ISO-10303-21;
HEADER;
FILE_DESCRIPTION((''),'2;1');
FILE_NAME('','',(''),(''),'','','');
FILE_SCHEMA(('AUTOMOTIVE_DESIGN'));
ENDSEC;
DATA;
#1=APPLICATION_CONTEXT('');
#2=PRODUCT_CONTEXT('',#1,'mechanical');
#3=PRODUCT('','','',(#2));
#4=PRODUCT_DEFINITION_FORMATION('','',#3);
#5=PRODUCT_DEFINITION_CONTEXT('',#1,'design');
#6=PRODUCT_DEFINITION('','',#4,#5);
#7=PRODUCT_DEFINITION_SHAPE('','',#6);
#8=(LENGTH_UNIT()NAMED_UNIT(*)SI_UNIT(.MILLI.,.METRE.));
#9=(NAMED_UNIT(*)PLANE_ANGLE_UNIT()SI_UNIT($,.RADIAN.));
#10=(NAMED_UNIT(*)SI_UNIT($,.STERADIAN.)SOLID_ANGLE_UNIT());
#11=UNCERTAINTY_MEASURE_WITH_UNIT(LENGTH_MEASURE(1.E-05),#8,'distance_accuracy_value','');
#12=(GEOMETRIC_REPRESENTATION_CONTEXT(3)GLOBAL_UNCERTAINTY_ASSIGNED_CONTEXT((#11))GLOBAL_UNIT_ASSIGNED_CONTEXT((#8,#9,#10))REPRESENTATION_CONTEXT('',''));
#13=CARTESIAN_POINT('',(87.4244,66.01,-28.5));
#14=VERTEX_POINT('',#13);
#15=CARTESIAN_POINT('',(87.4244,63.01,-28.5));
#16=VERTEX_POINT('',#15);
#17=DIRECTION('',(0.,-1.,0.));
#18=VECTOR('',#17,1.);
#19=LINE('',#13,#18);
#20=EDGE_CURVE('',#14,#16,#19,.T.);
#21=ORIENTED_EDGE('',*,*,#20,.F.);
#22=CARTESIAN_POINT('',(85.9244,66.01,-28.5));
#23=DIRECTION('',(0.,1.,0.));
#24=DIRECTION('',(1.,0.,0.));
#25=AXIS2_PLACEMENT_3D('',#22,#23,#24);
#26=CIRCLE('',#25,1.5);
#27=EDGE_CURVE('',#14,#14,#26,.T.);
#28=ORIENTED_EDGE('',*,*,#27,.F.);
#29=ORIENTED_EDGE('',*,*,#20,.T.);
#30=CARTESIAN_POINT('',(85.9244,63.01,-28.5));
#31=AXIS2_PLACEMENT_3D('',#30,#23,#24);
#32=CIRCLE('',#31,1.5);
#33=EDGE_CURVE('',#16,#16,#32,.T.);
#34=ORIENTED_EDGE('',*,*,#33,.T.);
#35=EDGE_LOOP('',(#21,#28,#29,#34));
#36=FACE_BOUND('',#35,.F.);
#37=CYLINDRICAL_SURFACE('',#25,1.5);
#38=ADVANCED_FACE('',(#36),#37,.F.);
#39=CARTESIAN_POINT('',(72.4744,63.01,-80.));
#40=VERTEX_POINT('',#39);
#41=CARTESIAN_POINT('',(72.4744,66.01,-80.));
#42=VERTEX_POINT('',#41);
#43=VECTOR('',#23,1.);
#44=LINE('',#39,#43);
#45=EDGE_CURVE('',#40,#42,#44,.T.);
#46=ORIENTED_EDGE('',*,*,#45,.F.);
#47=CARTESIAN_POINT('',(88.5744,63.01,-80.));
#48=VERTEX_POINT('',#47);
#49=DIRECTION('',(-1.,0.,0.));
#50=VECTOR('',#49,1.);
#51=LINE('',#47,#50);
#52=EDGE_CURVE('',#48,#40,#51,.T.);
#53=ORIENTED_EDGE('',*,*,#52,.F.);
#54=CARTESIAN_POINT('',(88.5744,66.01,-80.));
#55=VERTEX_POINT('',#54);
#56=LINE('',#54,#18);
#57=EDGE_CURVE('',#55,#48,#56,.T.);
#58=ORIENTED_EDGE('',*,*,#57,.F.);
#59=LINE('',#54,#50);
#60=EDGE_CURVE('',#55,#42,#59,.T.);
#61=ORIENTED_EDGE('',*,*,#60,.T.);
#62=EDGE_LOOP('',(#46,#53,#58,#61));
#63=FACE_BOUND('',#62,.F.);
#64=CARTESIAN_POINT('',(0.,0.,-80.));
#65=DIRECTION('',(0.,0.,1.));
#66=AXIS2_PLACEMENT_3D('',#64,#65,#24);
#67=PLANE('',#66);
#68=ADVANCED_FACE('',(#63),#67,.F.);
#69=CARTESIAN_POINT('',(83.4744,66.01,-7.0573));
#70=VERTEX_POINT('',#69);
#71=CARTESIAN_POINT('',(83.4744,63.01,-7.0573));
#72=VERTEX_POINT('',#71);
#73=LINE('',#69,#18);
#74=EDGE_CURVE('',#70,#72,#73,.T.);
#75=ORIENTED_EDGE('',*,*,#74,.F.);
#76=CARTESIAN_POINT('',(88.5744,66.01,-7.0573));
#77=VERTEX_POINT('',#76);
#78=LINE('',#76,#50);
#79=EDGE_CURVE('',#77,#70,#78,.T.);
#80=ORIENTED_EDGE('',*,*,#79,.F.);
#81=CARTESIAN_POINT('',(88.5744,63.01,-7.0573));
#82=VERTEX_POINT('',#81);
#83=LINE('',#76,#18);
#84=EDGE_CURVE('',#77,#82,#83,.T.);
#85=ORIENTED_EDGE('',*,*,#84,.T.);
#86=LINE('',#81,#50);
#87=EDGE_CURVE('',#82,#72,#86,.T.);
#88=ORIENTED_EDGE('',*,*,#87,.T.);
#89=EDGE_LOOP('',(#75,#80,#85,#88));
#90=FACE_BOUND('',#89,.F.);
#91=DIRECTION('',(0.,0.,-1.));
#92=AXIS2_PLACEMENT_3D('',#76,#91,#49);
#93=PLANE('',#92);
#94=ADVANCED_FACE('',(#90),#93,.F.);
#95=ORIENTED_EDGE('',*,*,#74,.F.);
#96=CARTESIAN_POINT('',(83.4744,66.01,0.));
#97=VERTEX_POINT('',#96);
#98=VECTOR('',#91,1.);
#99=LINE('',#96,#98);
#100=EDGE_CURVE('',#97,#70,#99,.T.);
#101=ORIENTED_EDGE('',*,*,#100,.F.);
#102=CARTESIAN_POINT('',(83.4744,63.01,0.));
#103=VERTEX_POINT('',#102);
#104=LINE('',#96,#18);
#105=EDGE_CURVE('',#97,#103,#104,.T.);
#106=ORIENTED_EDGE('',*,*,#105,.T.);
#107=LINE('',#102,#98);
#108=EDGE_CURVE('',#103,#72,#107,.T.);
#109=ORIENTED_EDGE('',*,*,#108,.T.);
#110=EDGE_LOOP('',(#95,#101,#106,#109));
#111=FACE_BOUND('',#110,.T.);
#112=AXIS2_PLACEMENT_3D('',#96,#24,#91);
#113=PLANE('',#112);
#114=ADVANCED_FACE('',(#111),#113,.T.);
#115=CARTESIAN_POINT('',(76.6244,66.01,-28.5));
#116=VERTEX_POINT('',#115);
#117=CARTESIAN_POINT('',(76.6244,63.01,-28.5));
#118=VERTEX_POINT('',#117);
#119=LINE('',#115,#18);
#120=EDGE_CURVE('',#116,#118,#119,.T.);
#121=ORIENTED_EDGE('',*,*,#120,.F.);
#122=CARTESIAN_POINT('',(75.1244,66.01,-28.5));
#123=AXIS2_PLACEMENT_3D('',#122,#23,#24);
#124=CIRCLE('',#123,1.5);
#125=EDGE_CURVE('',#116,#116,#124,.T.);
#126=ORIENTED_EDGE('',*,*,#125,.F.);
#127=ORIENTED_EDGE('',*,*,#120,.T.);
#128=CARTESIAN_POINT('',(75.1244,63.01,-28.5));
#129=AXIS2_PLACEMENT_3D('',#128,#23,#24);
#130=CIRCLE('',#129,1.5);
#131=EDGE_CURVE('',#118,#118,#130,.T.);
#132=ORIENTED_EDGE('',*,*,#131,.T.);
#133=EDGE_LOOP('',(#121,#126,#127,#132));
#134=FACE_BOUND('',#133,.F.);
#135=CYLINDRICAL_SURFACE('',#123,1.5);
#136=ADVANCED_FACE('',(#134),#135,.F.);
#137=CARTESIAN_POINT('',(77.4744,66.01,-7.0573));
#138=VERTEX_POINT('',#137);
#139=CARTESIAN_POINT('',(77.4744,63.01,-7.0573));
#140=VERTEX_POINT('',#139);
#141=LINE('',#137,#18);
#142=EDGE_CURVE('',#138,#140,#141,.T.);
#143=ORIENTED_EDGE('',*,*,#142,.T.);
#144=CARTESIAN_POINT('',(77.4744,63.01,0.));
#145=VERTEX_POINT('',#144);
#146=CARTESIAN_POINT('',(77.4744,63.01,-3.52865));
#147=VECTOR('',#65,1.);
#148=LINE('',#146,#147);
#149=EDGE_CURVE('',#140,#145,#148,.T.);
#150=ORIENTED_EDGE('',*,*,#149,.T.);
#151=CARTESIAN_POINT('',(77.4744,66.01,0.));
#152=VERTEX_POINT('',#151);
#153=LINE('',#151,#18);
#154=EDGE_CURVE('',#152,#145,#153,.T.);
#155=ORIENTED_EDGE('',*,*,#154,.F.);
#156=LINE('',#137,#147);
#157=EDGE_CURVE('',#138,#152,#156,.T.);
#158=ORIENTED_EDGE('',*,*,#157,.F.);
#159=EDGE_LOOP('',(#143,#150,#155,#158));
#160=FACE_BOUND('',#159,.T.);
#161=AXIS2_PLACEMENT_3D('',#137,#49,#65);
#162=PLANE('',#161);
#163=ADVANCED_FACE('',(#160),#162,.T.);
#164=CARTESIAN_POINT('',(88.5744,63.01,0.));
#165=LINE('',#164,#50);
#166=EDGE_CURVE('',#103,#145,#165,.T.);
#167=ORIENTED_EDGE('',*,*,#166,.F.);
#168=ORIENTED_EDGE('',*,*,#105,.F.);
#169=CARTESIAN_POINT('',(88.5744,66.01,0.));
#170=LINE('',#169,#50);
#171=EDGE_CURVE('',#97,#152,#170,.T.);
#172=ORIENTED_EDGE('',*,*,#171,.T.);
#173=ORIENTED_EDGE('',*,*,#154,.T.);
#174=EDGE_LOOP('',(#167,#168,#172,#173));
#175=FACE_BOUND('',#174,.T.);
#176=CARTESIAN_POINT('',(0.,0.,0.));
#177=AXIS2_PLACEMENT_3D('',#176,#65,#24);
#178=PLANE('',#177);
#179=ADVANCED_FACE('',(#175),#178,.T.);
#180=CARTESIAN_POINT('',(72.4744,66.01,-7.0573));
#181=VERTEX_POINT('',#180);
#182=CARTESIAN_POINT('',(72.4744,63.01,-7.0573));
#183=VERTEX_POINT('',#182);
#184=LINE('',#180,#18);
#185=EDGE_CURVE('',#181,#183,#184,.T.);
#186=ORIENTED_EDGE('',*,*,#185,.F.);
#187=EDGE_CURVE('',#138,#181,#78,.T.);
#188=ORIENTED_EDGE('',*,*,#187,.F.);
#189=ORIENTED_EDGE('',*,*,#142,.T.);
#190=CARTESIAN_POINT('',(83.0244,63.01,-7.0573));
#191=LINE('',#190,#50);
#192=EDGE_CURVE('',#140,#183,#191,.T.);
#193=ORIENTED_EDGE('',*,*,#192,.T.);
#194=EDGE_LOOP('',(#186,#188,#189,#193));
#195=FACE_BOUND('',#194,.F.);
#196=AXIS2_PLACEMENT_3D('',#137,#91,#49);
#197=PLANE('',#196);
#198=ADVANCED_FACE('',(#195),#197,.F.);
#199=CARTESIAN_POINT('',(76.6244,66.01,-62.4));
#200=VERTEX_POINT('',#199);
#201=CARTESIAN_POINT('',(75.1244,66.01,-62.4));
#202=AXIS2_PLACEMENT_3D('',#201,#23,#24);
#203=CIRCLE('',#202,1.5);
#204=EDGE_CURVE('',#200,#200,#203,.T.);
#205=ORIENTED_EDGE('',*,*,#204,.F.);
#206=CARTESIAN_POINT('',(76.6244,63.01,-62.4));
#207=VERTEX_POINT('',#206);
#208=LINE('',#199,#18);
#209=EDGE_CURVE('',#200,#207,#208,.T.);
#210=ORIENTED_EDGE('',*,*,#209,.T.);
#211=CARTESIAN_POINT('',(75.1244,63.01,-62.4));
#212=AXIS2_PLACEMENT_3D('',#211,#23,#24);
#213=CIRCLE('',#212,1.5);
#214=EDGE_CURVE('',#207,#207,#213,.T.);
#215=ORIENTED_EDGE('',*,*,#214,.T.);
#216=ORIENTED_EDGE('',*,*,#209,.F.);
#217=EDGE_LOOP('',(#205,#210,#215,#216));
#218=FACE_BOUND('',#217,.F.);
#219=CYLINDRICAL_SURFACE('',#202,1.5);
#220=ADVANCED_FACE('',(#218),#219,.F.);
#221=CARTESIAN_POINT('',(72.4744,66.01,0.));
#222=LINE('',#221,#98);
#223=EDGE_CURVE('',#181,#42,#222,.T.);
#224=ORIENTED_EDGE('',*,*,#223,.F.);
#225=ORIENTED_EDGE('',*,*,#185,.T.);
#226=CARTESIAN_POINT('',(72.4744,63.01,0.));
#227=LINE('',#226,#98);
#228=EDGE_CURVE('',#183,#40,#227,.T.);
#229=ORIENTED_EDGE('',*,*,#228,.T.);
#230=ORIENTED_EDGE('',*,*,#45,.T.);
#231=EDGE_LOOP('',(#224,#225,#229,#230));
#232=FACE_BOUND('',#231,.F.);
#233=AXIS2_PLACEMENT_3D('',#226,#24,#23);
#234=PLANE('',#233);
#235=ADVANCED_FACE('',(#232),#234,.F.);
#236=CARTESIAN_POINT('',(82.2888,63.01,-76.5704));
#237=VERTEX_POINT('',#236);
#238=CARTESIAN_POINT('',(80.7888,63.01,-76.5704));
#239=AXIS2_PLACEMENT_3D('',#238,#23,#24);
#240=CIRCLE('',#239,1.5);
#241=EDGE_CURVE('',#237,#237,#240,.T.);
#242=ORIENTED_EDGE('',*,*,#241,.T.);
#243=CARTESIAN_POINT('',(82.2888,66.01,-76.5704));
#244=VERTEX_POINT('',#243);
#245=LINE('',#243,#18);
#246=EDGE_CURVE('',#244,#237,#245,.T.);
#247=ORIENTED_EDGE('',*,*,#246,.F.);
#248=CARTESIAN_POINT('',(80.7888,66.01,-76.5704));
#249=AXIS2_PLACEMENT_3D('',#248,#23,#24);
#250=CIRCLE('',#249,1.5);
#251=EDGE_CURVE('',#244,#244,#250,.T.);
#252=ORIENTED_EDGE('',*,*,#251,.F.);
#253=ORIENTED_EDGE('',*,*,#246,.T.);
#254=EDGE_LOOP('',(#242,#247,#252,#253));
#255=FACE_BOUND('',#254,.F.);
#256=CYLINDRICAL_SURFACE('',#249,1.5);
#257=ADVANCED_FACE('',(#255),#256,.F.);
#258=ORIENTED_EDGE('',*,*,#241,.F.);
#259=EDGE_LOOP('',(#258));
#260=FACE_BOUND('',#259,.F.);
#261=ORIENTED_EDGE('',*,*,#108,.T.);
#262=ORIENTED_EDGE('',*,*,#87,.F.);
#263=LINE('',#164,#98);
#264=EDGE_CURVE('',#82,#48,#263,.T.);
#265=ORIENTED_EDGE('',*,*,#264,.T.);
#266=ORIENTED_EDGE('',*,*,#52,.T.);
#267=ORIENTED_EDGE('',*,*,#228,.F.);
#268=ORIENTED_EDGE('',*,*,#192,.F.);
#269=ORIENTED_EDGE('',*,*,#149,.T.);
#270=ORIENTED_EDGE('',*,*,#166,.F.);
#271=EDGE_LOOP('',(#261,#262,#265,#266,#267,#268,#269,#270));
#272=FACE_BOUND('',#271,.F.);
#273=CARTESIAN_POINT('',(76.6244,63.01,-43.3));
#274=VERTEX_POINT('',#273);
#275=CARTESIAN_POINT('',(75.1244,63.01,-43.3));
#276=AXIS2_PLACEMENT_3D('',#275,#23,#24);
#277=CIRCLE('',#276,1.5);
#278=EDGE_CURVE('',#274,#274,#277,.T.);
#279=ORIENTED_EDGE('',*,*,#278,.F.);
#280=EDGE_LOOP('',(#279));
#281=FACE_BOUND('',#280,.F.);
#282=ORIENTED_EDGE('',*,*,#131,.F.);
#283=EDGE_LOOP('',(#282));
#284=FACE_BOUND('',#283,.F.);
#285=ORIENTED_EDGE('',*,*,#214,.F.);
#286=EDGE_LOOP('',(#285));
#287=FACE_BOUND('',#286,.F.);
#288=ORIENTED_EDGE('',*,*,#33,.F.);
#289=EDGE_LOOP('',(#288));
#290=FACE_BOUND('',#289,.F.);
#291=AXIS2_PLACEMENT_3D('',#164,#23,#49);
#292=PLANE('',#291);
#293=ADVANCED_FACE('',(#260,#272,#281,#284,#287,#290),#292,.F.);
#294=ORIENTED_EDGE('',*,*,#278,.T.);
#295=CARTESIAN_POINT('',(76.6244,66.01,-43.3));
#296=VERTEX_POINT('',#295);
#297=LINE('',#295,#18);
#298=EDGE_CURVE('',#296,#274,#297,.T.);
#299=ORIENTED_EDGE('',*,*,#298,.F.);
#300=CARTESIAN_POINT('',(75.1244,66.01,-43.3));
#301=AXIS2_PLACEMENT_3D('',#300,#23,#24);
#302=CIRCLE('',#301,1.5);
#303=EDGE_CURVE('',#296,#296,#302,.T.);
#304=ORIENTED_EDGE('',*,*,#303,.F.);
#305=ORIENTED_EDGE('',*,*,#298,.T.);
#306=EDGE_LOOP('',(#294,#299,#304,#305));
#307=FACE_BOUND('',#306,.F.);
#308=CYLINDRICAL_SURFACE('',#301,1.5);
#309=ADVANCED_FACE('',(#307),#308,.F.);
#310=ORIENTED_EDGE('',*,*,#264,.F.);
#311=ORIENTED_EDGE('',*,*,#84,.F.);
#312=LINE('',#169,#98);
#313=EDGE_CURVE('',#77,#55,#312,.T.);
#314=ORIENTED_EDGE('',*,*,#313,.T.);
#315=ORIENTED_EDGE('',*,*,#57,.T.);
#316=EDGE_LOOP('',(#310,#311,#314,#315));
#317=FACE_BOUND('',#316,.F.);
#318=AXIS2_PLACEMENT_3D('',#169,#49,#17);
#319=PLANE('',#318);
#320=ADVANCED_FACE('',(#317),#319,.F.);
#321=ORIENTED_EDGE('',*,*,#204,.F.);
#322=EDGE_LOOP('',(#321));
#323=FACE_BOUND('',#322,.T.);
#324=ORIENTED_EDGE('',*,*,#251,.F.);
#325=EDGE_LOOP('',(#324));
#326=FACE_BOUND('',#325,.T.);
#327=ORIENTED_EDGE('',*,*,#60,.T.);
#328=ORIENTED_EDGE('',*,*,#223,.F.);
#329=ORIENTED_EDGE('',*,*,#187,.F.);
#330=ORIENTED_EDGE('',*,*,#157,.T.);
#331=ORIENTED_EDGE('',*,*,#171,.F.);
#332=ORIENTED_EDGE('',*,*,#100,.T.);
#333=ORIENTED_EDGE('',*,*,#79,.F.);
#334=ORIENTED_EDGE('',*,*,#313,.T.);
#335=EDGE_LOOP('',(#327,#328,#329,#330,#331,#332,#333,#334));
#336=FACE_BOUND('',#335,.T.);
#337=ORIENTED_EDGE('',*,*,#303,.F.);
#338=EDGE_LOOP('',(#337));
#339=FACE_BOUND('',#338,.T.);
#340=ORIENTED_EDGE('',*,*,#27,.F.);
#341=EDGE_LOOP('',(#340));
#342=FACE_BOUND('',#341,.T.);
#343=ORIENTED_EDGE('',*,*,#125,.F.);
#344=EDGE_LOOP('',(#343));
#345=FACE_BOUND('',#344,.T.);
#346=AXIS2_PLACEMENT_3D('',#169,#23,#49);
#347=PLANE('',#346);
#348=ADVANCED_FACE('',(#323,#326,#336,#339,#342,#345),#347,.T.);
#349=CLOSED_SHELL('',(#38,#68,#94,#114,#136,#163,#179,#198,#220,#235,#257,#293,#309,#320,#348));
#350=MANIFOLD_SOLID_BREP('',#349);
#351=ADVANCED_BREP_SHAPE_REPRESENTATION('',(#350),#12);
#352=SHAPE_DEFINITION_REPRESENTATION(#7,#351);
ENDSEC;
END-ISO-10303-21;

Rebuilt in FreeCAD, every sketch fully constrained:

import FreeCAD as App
import Part
import Sketcher

V = App.Vector
Q = App.Units.Quantity


def add_polygon(sketch, points):
    """Adds a closed chain of lines whose ends are joined by coincident constraints."""
    first, n = sketch.GeometryCount, len(points)
    for a, b in zip(points, points[1:] + points[:1]):
        sketch.addGeometry(Part.LineSegment(App.Vector(*a, 0), App.Vector(*b, 0)), False)
    for i in range(n):
        sketch.addConstraint(Sketcher.Constraint("Coincident", first + i, 2, first + (i + 1) % n, 1))

doc = App.newDocument("Part")
body = doc.addObject("PartDesign::Body", "Body")

sketch1 = body.newObject("Sketcher::SketchObject", "Sketch")
sketch1.AttachmentSupport = (doc.getObject("XY_Plane"), [""])
sketch1.MapMode = "FlatFace"
add_polygon(sketch1, [(88.5744, 63.01), (88.5744, 66.01), (72.4744, 66.01), (72.4744, 63.01)])
sketch1.addConstraint([
    Sketcher.Constraint("Vertical", 0),
    Sketcher.Constraint("Horizontal", 1),
    Sketcher.Constraint("Vertical", 2),
    Sketcher.Constraint("Horizontal", 3),
    Sketcher.Constraint("DistanceY", 0, 1, 0, 2, Q("3 mm")),
    Sketcher.Constraint("DistanceX", 1, 2, 1, 1, Q("16.1 mm")),
    Sketcher.Constraint("DistanceY", -1, 1, 0, 2, Q("66.01 mm")),
    Sketcher.Constraint("DistanceX", -1, 1, 0, 2, Q("88.5744 mm")),
])
pad1 = body.newObject("PartDesign::Pad", "Pad")
pad1.Profile = sketch1
pad1.Length = 80
pad1.Reversed = True

sketch2 = body.newObject("Sketcher::SketchObject", "Sketch001")
sketch2.AttachmentSupport = (doc.getObject("XZ_Plane"), [""])
sketch2.MapMode = "FlatFace"
sketch2.AttachmentOffset = App.Placement(V(0, 0, -66.01), App.Rotation())
sketch2.addGeometry([
    Part.Circle(V(75.1244, -28.5, 0), V(0, 0, 1), 1.5),
    Part.Circle(V(85.9244, -28.5, 0), V(0, 0, 1), 1.5),
    Part.Circle(V(75.1244, -43.3, 0), V(0, 0, 1), 1.5),
    Part.Circle(V(75.1244, -62.4, 0), V(0, 0, 1), 1.5),
], False)
sketch2.addConstraint([
    Sketcher.Constraint("Equal", 0, 1),
    Sketcher.Constraint("Equal", 1, 2),
    Sketcher.Constraint("Equal", 2, 3),
    Sketcher.Constraint("Horizontal", 0, 3, 1, 3),
    Sketcher.Constraint("Vertical", 0, 3, 2, 3),
    Sketcher.Constraint("Vertical", 2, 3, 3, 3),
    Sketcher.Constraint("Diameter", 0, Q("3 mm")),
    Sketcher.Constraint("DistanceY", 0, 3, -1, 1, Q("28.5 mm")),
    Sketcher.Constraint("DistanceY", 2, 3, -1, 1, Q("43.3 mm")),
    Sketcher.Constraint("DistanceY", 3, 3, -1, 1, Q("62.4 mm")),
    Sketcher.Constraint("DistanceX", 0, 3, 1, 3, Q("10.8 mm")),
    Sketcher.Constraint("DistanceX", -1, 1, 0, 3, Q("75.1244 mm")),
])
pocket1 = body.newObject("PartDesign::Pocket", "Pocket")
pocket1.Profile = sketch2
pocket1.Length = 80
pocket1.Reversed = True

sketch3 = body.newObject("Sketcher::SketchObject", "Sketch002")
sketch3.AttachmentSupport = (doc.getObject("XZ_Plane"), [""])
sketch3.MapMode = "FlatFace"
sketch3.AttachmentOffset = App.Placement(V(0, 0, -66.01), App.Rotation())
add_polygon(sketch3, [(72.4744, -7.0573), (72.4744, 0), (77.4744, 0), (77.4744, -7.0573)])
add_polygon(sketch3, [(83.4744, -7.0573), (83.4744, 0), (88.5744, 0), (88.5744, -7.0573)])
sketch3.addConstraint([
    Sketcher.Constraint("Vertical", 0),
    Sketcher.Constraint("Horizontal", 1),
    Sketcher.Constraint("Vertical", 2),
    Sketcher.Constraint("Horizontal", 3),
    Sketcher.Constraint("Vertical", 4),
    Sketcher.Constraint("Horizontal", 5),
    Sketcher.Constraint("Vertical", 6),
    Sketcher.Constraint("Horizontal", 7),
    Sketcher.Constraint("PointOnObject", 0, 2, -1),
    Sketcher.Constraint("PointOnObject", 4, 2, -1),
    Sketcher.Constraint("Horizontal", 3, 2, 6, 2),
    Sketcher.Constraint("DistanceX", 1, 1, 1, 2, Q("5 mm")),
    Sketcher.Constraint("DistanceX", 1, 2, 4, 2, Q("6 mm")),
    Sketcher.Constraint("DistanceX", 5, 1, 5, 2, Q("5.1 mm")),
    Sketcher.Constraint("DistanceY", 0, 1, 0, 2, Q("7.0573 mm")),
    Sketcher.Constraint("DistanceX", -1, 1, 0, 2, Q("72.4744 mm")),
])
pocket2 = body.newObject("PartDesign::Pocket", "Pocket001")
pocket2.Profile = sketch3
pocket2.Length = 80
pocket2.Reversed = True

sketch4 = body.newObject("Sketcher::SketchObject", "Sketch003")
sketch4.AttachmentSupport = (doc.getObject("XZ_Plane"), [""])
sketch4.MapMode = "FlatFace"
sketch4.AttachmentOffset = App.Placement(V(0, 0, -66.01), App.Rotation())
sketch4.addGeometry(Part.Circle(V(80.7888, -76.5704, 0), V(0, 0, 1), 1.5), False)
sketch4.addConstraint([
    Sketcher.Constraint("Diameter", 0, Q("3 mm")),
    Sketcher.Constraint("DistanceX", -1, 1, 0, 3, Q("80.7888 mm")),
    Sketcher.Constraint("DistanceY", 0, 3, -1, 1, Q("76.5704 mm")),
])
pocket3 = body.newObject("PartDesign::Pocket", "Pocket002")
pocket3.Profile = sketch4
pocket3.Length = 80
pocket3.Reversed = True

doc.recompute()
